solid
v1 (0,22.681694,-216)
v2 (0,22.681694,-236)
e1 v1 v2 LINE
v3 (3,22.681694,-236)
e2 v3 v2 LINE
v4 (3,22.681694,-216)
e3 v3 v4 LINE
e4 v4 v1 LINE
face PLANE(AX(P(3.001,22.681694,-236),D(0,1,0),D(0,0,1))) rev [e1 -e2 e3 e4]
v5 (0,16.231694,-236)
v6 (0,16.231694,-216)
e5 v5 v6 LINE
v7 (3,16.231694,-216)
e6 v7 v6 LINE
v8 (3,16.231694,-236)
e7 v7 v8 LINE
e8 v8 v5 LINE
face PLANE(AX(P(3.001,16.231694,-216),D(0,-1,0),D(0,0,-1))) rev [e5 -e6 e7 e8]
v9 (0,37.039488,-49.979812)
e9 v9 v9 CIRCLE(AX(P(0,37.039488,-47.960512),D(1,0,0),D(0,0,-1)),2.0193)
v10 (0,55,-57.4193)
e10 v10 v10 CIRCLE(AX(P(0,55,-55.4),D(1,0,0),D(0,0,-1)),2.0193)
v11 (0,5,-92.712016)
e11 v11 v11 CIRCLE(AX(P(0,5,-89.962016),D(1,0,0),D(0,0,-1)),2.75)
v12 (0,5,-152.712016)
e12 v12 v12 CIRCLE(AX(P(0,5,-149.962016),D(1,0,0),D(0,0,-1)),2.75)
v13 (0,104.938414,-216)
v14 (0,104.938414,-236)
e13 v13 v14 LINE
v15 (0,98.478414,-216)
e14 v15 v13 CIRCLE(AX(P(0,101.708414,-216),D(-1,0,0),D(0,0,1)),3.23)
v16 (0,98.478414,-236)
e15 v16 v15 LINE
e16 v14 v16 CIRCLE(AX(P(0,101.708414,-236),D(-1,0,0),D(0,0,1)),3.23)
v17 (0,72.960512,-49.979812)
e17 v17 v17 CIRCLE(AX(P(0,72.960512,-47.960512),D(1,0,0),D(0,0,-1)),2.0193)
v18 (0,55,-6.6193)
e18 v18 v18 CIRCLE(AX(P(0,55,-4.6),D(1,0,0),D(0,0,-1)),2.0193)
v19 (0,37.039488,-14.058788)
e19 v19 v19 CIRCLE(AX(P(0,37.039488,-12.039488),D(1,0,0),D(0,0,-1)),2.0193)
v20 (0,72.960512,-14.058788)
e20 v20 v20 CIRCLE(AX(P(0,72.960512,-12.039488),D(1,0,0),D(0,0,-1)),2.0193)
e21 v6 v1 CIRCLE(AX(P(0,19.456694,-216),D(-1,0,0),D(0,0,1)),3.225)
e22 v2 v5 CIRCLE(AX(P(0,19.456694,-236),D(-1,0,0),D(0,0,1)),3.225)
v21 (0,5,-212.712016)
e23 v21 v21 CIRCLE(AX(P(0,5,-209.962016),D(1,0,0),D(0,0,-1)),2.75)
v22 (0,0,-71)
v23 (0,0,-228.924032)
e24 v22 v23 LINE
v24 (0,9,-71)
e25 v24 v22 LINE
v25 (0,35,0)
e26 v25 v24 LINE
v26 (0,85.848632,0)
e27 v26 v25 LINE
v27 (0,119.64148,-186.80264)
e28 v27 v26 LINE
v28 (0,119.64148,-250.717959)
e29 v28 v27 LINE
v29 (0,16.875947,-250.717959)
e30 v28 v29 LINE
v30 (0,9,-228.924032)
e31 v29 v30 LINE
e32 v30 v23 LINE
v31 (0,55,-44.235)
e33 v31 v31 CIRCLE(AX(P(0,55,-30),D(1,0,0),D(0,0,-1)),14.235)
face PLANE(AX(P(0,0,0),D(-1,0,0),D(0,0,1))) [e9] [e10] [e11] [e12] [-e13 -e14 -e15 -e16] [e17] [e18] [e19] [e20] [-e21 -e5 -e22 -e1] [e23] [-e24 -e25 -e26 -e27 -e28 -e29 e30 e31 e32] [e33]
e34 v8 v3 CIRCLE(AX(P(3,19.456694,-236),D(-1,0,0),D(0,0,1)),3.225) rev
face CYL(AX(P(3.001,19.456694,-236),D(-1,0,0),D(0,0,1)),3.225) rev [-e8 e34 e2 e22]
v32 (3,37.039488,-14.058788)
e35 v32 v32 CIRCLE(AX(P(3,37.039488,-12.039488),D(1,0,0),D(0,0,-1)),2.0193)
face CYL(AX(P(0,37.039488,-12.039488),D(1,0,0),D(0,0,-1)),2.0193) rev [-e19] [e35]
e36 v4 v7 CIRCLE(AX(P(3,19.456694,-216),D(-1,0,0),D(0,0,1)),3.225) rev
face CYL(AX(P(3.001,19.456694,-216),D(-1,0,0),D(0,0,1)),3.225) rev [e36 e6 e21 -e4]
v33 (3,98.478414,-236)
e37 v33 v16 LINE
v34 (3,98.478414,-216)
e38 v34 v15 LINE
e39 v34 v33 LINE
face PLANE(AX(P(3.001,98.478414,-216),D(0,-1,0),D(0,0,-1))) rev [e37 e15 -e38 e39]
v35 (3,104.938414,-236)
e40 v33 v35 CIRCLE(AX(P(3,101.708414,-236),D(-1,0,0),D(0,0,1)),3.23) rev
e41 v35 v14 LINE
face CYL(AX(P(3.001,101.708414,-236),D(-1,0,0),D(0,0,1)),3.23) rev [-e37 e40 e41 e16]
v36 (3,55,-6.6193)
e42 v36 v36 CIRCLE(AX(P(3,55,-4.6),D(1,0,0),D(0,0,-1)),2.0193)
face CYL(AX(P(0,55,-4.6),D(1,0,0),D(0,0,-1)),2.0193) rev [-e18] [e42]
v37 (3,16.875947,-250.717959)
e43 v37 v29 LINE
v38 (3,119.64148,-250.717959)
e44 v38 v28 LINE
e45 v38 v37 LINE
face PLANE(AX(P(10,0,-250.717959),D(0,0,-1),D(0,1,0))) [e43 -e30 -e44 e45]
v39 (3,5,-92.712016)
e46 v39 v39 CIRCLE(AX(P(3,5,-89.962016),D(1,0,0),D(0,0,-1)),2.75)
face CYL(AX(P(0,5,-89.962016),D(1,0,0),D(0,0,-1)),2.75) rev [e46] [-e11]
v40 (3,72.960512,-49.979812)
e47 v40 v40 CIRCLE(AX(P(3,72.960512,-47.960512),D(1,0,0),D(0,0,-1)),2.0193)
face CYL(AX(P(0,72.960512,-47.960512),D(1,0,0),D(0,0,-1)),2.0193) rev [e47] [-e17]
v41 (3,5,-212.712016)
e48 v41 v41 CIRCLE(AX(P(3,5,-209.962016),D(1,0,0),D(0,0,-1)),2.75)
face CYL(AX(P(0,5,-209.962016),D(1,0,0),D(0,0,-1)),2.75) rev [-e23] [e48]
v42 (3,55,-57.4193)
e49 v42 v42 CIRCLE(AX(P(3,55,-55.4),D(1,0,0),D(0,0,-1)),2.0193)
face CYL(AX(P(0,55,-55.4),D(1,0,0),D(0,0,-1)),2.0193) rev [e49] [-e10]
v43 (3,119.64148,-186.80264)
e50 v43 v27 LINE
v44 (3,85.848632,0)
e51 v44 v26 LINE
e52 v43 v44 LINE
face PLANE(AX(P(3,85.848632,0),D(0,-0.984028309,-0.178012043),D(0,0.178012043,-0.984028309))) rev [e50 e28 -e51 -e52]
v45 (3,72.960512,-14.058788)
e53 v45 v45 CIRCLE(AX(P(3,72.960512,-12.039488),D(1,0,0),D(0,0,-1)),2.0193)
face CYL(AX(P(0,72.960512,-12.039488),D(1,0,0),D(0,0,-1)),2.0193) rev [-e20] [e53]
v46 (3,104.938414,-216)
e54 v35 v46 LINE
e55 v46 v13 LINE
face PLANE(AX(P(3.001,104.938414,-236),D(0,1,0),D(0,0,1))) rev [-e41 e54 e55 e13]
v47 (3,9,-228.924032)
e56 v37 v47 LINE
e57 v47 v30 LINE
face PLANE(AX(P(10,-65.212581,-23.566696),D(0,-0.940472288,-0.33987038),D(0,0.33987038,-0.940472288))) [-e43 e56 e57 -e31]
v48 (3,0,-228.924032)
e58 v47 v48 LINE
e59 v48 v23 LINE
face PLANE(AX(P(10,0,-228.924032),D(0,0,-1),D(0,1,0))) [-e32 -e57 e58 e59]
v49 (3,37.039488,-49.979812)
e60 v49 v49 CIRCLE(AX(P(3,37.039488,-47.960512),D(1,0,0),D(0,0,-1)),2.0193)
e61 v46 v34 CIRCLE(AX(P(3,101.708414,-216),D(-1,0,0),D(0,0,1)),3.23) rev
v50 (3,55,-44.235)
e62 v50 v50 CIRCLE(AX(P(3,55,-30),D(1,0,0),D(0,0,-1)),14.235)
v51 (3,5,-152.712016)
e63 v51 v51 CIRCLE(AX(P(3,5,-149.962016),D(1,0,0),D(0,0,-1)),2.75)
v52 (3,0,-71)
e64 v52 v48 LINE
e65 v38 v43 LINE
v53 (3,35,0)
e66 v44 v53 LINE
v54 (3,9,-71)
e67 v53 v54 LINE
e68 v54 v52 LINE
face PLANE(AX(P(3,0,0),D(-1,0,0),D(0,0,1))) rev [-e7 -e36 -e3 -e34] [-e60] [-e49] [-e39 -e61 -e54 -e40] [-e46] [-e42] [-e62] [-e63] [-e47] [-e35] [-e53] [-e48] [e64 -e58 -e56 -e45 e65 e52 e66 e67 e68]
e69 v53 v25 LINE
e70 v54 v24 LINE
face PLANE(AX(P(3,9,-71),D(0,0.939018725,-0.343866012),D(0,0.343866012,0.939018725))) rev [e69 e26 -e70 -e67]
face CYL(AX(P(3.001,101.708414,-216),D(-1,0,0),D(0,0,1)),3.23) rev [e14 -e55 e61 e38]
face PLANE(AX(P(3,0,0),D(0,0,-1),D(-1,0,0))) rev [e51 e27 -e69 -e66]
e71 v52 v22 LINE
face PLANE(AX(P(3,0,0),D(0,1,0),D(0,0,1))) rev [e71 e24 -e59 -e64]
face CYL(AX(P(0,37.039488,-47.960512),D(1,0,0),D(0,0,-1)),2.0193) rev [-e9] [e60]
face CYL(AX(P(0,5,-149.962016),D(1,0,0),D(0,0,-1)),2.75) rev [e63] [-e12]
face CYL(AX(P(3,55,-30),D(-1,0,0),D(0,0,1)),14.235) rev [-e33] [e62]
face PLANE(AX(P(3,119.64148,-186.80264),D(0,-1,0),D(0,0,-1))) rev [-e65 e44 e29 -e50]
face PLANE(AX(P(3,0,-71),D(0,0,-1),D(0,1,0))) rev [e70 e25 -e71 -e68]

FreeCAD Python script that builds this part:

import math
import FreeCAD as App
import Part
import Sketcher

V = App.Vector
Q = App.Units.Quantity


def add_polygon(sketch, points):
    """Adds a closed chain of lines whose ends are joined by coincident constraints."""
    first, n = sketch.GeometryCount, len(points)
    for a, b in zip(points, points[1:] + points[:1]):
        sketch.addGeometry(Part.LineSegment(App.Vector(*a, 0), App.Vector(*b, 0)), False)
    for i in range(n):
        sketch.addConstraint(Sketcher.Constraint("Coincident", first + i, 2, first + (i + 1) % n, 1))

doc = App.newDocument("Part")
body = doc.addObject("PartDesign::Body", "Body")

sketch1 = doc.addObject("Sketcher::SketchObject", "Sketch")
body.addObject(sketch1)
sketch1.AttachmentSupport = (doc.YZ_Plane, [""])
sketch1.MapMode = "FlatFace"
add_polygon(sketch1, [(150, 0), (0, 0), (0, -300), (150, -300)])
sketch1.addGeometry(Part.Circle(V(55, -30, 0), V(0, 0, 1), 14), False)
sketch1.addConstraint([
    Sketcher.Constraint("Horizontal", 0),
    Sketcher.Constraint("Vertical", 1),
    Sketcher.Constraint("Horizontal", 2),
    Sketcher.Constraint("Vertical", 3),
    Sketcher.Constraint("Coincident", 0, 2, -1, 1),
    Sketcher.Constraint("Diameter", 4, Q("28.47 mm")),
    Sketcher.Constraint("DistanceX", 0, 2, 0, 1, Q("150 mm")),
    Sketcher.Constraint("DistanceY", 1, 2, 1, 1, Q("300 mm")),
    Sketcher.Constraint("DistanceX", -1, 1, 4, 3, Q("55 mm")),
    Sketcher.Constraint("DistanceY", 4, 3, -1, 1, Q("30 mm")),
])
pad1 = doc.addObject("PartDesign::Pad", "Pad")
body.addObject(pad1)
pad1.Profile = sketch1
pad1.Length = 3

sketch2 = doc.addObject("Sketcher::SketchObject", "Sketch001")
body.addObject(sketch2)
sketch2.AttachmentSupport = (doc.YZ_Plane, [""])
sketch2.MapMode = "FlatFace"
sketch2.addGeometry(Part.Circle(V(110, -10, 0), V(0, 0, 1), 3.2), False)
sketch2.addConstraint([
    Sketcher.Constraint("Diameter", 0, Q("6.45 mm")),
    Sketcher.Constraint("DistanceX", -1, 1, 0, 3, Q("110 mm")),
    Sketcher.Constraint("DistanceY", 0, 3, -1, 1, Q("10 mm")),
])
pocket1 = doc.addObject("PartDesign::Pocket", "Pocket")
body.addObject(pocket1)
pocket1.Profile = sketch2
pocket1.Type = "UpToFirst"
pocket1.Reversed = True

sketch3 = doc.addObject("Sketcher::SketchObject", "Sketch002")
body.addObject(sketch3)
sketch3.AttachmentSupport = (doc.YZ_Plane, [""])
sketch3.MapMode = "FlatFace"
sketch3.addGeometry([
    Part.LineSegment(V(104.9, -216, 0), V(104.9, -236, 0)),
    Part.ArcOfCircle(Part.Circle(V(101.7, -236, 0), V(0, 0, 1), 3.2), math.radians(180), math.radians(360)),
    Part.LineSegment(V(98.5, -236, 0), V(98.5, -216, 0)),
    Part.ArcOfCircle(Part.Circle(V(101.7, -216, 0), V(0, 0, 1), 3.2), math.radians(0), math.radians(180)),
], False)
sketch3.addConstraint([
    Sketcher.Constraint("Tangent", 0, 2, 1, 2),
    Sketcher.Constraint("Tangent", 1, 1, 2, 1),
    Sketcher.Constraint("Tangent", 2, 2, 3, 2),
    Sketcher.Constraint("Tangent", 3, 1, 0, 1),
    Sketcher.Constraint("Vertical", 0),
    Sketcher.Constraint("Vertical", 2),
    Sketcher.Constraint("DistanceY", 0, 2, 0, 1, Q("20 mm")),
    Sketcher.Constraint("Radius", 1, Q("3.23 mm")),
    Sketcher.Constraint("DistanceY", 1, 3, -1, 1, Q("236 mm")),
    Sketcher.Constraint("DistanceX", -1, 1, 1, 3, Q("101.708414 mm")),
])
pocket2 = doc.addObject("PartDesign::Pocket", "Pocket001")
body.addObject(pocket2)
pocket2.Profile = sketch3
pocket2.Type = "UpToFirst"
pocket2.Reversed = True

sketch4 = doc.addObject("Sketcher::SketchObject", "Sketch003")
body.addObject(sketch4)
sketch4.AttachmentSupport = (doc.YZ_Plane, [""])
sketch4.MapMode = "FlatFace"
sketch4.addGeometry([
    Part.LineSegment(V(16.2, -236, 0), V(16.2, -216, 0)),
    Part.ArcOfCircle(Part.Circle(V(19.5, -216, 0), V(0, 0, 1), 3.2), math.radians(0), math.radians(180)),
    Part.LineSegment(V(22.7, -216, 0), V(22.7, -236, 0)),
    Part.ArcOfCircle(Part.Circle(V(19.5, -236, 0), V(0, 0, 1), 3.2), math.radians(180), math.radians(360)),
], False)
sketch4.addConstraint([
    Sketcher.Constraint("Tangent", 0, 2, 1, 2),
    Sketcher.Constraint("Tangent", 1, 1, 2, 1),
    Sketcher.Constraint("Tangent", 2, 2, 3, 2),
    Sketcher.Constraint("Tangent", 3, 1, 0, 1),
    Sketcher.Constraint("Vertical", 0),
    Sketcher.Constraint("Vertical", 2),
    Sketcher.Constraint("DistanceY", 0, 1, 0, 2, Q("20 mm")),
    Sketcher.Constraint("DistanceY", 1, 3, -1, 1, Q("216 mm")),
    Sketcher.Constraint("Radius", 1, Q("3.225 mm")),
    Sketcher.Constraint("DistanceX", -1, 1, 1, 3, Q("19.456694 mm")),
])
pocket3 = doc.addObject("PartDesign::Pocket", "Pocket002")
body.addObject(pocket3)
pocket3.Profile = sketch4
pocket3.Type = "UpToFirst"
pocket3.Reversed = True

sketch5 = doc.addObject("Sketcher::SketchObject", "Sketch004")
body.addObject(sketch5)
sketch5.AttachmentSupport = (doc.YZ_Plane, [""])
sketch5.MapMode = "FlatFace"
sketch5.AttachmentOffset = App.Placement(V(0, 0, 3), App.Rotation())
sketch5.addGeometry([
    Part.Circle(V(37, -12, 0), V(0, 0, 1), 2),
    Part.Circle(V(73, -12, 0), V(0, 0, 1), 2),
    Part.Circle(V(55, -4.6, 0), V(0, 0, 1), 2),
    Part.Circle(V(37, -48, 0), V(0, 0, 1), 2),
    Part.Circle(V(55, -55.4, 0), V(0, 0, 1), 2),
    Part.Circle(V(73, -48, 0), V(0, 0, 1), 2),
], False)
sketch5.addConstraint([
    Sketcher.Constraint("Equal", 0, 1),
    Sketcher.Constraint("Equal", 1, 2),
    Sketcher.Constraint("Equal", 2, 3),
    Sketcher.Constraint("Equal", 3, 4),
    Sketcher.Constraint("Equal", 4, 5),
    Sketcher.Constraint("Horizontal", 0, 3, 1, 3),
    Sketcher.Constraint("Horizontal", 3, 3, 5, 3),
    Sketcher.Constraint("Vertical", 0, 3, 3, 3),
    Sketcher.Constraint("Vertical", 2, 3, 4, 3),
    Sketcher.Constraint("Vertical", 1, 3, 5, 3),
    Sketcher.Constraint("DistanceX", -1, 1, 2, 3, Q("55 mm")),
    Sketcher.Constraint("Diameter", 0, Q("4.0386 mm")),
    Sketcher.Constraint("DistanceY", 2, 3, -1, 1, Q("4.6 mm")),
    Sketcher.Constraint("DistanceY", 4, 3, -1, 1, Q("55.4 mm")),
    Sketcher.Constraint("DistanceX", -1, 1, 0, 3, Q("37.039488 mm")),
    Sketcher.Constraint("DistanceY", 0, 3, -1, 1, Q("12.039488 mm")),
    Sketcher.Constraint("DistanceX", -1, 1, 1, 3, Q("72.960512 mm")),
    Sketcher.Constraint("DistanceY", 3, 3, -1, 1, Q("47.960512 mm")),
])
pocket4 = doc.addObject("PartDesign::Pocket", "Pocket003")
body.addObject(pocket4)
pocket4.Profile = sketch5
pocket4.Type = "ThroughAll"

sketch6 = doc.addObject("Sketcher::SketchObject", "Sketch005")
body.addObject(sketch6)
sketch6.AttachmentSupport = (doc.YZ_Plane, [""])
sketch6.MapMode = "FlatFace"
add_polygon(sketch6, [(9, -71), (0, -71), (0, 0), (35, 0)])
add_polygon(sketch6, [(120, -187), (86, 0), (150, 0), (150, -300), (120, -300)])
sketch6.addConstraint([
    Sketcher.Constraint("Horizontal", 0),
    Sketcher.Constraint("Vertical", 1),
    Sketcher.Constraint("Horizontal", 2),
    Sketcher.Constraint("Horizontal", 5),
    Sketcher.Constraint("Vertical", 6),
    Sketcher.Constraint("Horizontal", 7),
    Sketcher.Constraint("Vertical", 8),
    Sketcher.Constraint("Coincident", 1, 2, -1, 1),
    Sketcher.Constraint("PointOnObject", 4, 2, -1),
    Sketcher.Constraint("DistanceX", 0, 2, 0, 1, Q("9 mm")),
    Sketcher.Constraint("DistanceX", 2, 1, 2, 2, Q("35 mm")),
    Sketcher.Constraint("DistanceY", 1, 1, 1, 2, Q("71 mm")),
    Sketcher.Constraint("DistanceX", -1, 1, 5, 2, Q("150 mm")),
    Sketcher.Constraint("DistanceX", 5, 1, 5, 2, Q("64.151368 mm")),
    Sketcher.Constraint("DistanceX", 7, 2, 7, 1, Q("30.35852 mm")),
    Sketcher.Constraint("DistanceY", 6, 2, 6, 1, Q("300.310492 mm")),
    Sketcher.Constraint("DistanceY", 8, 1, 8, 2, Q("113.507851 mm")),
])
pocket5 = doc.addObject("PartDesign::Pocket", "Pocket004")
body.addObject(pocket5)
pocket5.Profile = sketch6
pocket5.Type = "ThroughAll"
pocket5.Reversed = True

sketch7 = doc.addObject("Sketcher::SketchObject", "Sketch006")
body.addObject(sketch7)
sketch7.AttachmentSupport = (doc.YZ_Plane, [""])
sketch7.MapMode = "FlatFace"
add_polygon(sketch7, [(17, -251), (166, -251), (166, -365), (0, -356), (0, -229), (9, -229)])
sketch7.addConstraint([
    Sketcher.Constraint("Horizontal", 0),
    Sketcher.Constraint("Vertical", 1),
    Sketcher.Constraint("Vertical", 3),
    Sketcher.Constraint("Horizontal", 4),
    Sketcher.Constraint("PointOnObject", 2, 2, -2),
    Sketcher.Constraint("DistanceX", 4, 1, 4, 2, Q("9 mm")),
    Sketcher.Constraint("DistanceX", 0, 1, 0, 2, Q("148.836949 mm")),
    Sketcher.Constraint("DistanceY", 1, 2, 1, 1, Q("114.112907 mm")),
    Sketcher.Constraint("DistanceY", 3, 1, 3, 2, Q("126.844855 mm")),
    Sketcher.Constraint("DistanceY", 0, 2, -1, 1, Q("250.717959 mm")),
    Sketcher.Constraint("DistanceY", 1, 2, 2, 2, Q("9.061979 mm")),
    Sketcher.Constraint("Distance", 2, Q("165.960487 mm")),
])
pocket6 = doc.addObject("PartDesign::Pocket", "Pocket005")
body.addObject(pocket6)
pocket6.Profile = sketch7
pocket6.Length = 10
pocket6.Reversed = True

sketch8 = doc.addObject("Sketcher::SketchObject", "Sketch007")
body.addObject(sketch8)
sketch8.AttachmentSupport = (doc.YZ_Plane, [""])
sketch8.MapMode = "FlatFace"
sketch8.AttachmentOffset = App.Placement(V(0, 0, 3), App.Rotation())
sketch8.addGeometry([
    Part.Circle(V(5, -90, 0), V(0, 0, 1), 2.8),
    Part.Circle(V(5, -150, 0), V(0, 0, 1), 2.8),
    Part.Circle(V(5, -210, 0), V(0, 0, 1), 2.8),
], False)
sketch8.addConstraint([
    Sketcher.Constraint("Equal", 0, 1),
    Sketcher.Constraint("Equal", 1, 2),
    Sketcher.Constraint("Vertical", 0, 3, 1, 3),
    Sketcher.Constraint("Vertical", 1, 3, 2, 3),
    Sketcher.Constraint("Diameter", 0, Q("5.5 mm")),
    Sketcher.Constraint("DistanceX", -1, 1, 0, 3, Q("5 mm")),
    Sketcher.Constraint("DistanceY", 1, 3, 0, 3, Q("60 mm")),
    Sketcher.Constraint("DistanceY", 2, 3, 1, 3, Q("60 mm")),
    Sketcher.Constraint("DistanceY", 0, 3, -1, 1, Q("89.962016 mm")),
])
pocket7 = doc.addObject("PartDesign::Pocket", "Pocket006")
body.addObject(pocket7)
pocket7.Profile = sketch8
pocket7.Type = "ThroughAll"

doc.recompute()
